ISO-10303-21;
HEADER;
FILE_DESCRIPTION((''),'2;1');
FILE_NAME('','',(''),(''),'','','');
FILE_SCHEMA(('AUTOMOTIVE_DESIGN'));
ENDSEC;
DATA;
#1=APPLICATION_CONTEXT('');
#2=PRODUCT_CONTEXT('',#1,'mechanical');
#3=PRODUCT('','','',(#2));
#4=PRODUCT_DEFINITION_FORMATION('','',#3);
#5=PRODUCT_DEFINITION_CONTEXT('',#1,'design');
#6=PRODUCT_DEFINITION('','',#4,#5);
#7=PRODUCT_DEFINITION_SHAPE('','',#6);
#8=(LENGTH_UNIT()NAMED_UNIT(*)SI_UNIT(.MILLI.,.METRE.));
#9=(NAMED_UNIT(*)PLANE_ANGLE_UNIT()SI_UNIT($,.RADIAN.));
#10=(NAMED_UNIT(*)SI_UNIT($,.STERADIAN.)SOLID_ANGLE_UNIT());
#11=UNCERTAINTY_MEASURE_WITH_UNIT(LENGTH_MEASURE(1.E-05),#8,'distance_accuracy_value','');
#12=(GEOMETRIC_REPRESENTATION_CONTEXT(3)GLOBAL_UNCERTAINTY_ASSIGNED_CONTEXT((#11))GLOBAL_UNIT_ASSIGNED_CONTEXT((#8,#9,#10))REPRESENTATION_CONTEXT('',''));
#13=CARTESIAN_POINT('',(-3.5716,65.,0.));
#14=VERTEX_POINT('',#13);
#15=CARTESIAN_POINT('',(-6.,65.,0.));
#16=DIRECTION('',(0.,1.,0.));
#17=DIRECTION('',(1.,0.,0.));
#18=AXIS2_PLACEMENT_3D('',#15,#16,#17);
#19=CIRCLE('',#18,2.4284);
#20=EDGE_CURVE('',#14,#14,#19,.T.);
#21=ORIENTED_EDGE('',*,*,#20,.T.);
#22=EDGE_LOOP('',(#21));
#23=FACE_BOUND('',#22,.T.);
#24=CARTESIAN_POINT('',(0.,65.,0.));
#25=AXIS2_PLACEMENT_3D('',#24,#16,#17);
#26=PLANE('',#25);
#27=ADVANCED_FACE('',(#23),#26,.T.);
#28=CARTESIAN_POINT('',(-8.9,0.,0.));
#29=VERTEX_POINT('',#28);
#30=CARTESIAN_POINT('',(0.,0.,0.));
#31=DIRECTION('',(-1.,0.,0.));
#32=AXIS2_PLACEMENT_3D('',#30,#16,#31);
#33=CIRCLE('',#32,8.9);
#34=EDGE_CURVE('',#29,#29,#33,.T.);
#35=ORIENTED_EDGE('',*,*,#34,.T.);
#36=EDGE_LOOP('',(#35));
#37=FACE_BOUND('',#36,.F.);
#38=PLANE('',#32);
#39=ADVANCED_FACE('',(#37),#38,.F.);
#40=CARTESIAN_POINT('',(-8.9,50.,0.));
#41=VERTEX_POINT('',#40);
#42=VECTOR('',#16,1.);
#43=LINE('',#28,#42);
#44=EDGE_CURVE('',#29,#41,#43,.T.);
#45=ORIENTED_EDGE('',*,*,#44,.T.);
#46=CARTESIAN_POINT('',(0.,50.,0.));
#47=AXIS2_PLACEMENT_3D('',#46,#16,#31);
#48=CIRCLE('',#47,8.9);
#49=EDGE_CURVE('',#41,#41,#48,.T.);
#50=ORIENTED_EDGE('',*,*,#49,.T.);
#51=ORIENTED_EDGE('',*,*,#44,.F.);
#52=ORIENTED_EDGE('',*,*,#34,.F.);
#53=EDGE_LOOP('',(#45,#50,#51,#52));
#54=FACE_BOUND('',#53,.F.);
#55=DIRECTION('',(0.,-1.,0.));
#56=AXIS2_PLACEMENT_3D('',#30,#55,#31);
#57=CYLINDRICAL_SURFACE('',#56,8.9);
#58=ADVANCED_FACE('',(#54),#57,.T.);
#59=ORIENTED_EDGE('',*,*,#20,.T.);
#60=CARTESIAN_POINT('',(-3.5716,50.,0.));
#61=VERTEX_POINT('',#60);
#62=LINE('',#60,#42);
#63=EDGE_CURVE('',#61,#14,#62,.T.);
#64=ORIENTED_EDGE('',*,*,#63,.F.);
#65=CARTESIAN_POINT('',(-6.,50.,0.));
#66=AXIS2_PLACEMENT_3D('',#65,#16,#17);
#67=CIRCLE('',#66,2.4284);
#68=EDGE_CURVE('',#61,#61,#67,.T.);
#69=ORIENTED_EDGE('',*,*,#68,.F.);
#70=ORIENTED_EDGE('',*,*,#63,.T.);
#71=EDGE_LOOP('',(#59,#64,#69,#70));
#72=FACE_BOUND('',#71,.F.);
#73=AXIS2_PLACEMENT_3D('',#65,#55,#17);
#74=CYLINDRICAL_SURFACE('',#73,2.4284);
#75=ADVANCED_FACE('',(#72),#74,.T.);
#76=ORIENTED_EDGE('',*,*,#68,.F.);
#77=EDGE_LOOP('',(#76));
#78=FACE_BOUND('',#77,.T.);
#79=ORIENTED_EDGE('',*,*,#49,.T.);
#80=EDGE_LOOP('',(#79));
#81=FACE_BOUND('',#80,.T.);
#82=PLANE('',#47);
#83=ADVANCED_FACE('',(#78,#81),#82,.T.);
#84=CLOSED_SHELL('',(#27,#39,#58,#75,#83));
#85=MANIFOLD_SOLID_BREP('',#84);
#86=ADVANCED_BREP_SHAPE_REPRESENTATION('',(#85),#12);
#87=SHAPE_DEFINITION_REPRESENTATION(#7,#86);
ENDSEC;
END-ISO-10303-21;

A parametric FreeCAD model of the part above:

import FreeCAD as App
import Part
import Sketcher

V = App.Vector

doc = App.newDocument("Part")
body = doc.addObject("PartDesign::Body", "Body")

# Sketch on XZ plane
sketch1 = body.newObject("Sketcher::SketchObject", "Sketch")
sketch1.AttachmentSupport = (doc.getObject("XZ_Plane"), [""])
sketch1.MapMode = "FlatFace"
sketch1.addGeometry(Part.Circle(V(0, 0, 0), V(0, 0, 1), 9), False)
sketch1.addConstraint([
    Sketcher.Constraint("Coincident", 0, 3, -1, 1),
    Sketcher.Constraint("Diameter", 0, 17.8),
])
pad1 = body.newObject("PartDesign::Pad", "Pad")
pad1.Profile = sketch1
pad1.Length = 50
pad1.Reversed = True

# Sketch on XZ plane
sketch2 = body.newObject("Sketcher::SketchObject", "Sketch001")
sketch2.AttachmentSupport = (doc.getObject("XZ_Plane"), [""])
sketch2.MapMode = "FlatFace"
sketch2.AttachmentOffset = App.Placement(V(0, 0, -50), App.Rotation())
sketch2.addGeometry(Part.Circle(V(-6, 0, 0), V(0, 0, 1), 2.4), False)
sketch2.addConstraint([
    Sketcher.Constraint("PointOnObject", 0, 3, -1),
    Sketcher.Constraint("DistanceX", 0, 3, -1, 1, 6.0),
    Sketcher.Constraint("Diameter", 0, 4.8568),
])
pad2 = body.newObject("PartDesign::Pad", "Pad001")
pad2.Profile = sketch2
pad2.Length = 15
pad2.Reversed = True

doc.recompute()
